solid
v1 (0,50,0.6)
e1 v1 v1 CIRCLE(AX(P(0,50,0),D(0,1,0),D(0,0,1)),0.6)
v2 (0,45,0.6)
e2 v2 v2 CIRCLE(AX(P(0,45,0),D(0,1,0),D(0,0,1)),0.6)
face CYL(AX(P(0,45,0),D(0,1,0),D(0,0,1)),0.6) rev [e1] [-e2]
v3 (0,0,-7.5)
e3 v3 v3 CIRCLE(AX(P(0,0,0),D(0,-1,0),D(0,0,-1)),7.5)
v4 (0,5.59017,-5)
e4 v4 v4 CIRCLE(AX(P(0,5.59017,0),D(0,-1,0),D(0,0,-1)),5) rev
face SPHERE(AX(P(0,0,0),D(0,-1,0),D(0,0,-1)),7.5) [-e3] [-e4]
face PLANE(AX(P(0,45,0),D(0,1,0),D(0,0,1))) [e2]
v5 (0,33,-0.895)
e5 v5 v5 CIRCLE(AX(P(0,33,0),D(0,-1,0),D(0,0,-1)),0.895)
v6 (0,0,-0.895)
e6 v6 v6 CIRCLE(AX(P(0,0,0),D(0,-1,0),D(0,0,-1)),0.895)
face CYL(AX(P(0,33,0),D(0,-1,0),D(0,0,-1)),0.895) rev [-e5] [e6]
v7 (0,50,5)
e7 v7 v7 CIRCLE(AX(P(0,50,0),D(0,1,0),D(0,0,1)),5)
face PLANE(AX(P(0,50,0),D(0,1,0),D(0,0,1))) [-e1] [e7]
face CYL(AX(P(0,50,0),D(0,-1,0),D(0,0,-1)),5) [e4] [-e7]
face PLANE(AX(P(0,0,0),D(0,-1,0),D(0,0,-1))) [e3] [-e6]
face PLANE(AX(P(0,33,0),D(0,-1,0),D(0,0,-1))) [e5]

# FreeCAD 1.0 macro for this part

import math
import FreeCAD as App
import Part
import Sketcher
from FreeCAD import Vector
Q = App.Units.Quantity

doc = App.newDocument("Part")
params = doc.addObject("Spreadsheet::Sheet", "Params")
for row, (alias, value) in enumerate([
    ("sketch1_radius", "7.5 mm"),
    ("revolution_angle", "180 deg"),
    ("sketch2_diameter", "10 mm"),
    ("pad1_length", "50 mm"),
    ("sketch3_diameter", "1.2 mm"),
    ("pocket1_length", "5 mm"),
    ("sketch4_diameter", "1.79 mm"),
    ("pocket2_length", "33 mm"),
], start=1):
    params.set(f"A{row}", alias)
    params.set(f"B{row}", "=" + value)
    params.setAlias(f"B{row}", alias)

body = doc.addObject("PartDesign::Body", "Body")

# Sketch on XZ plane
sketch1 = doc.addObject("Sketcher::SketchObject", "Sketch")
body.addObject(sketch1)
sketch1.AttachmentSupport = (doc.XZ_Plane, [""])
sketch1.MapMode = "FlatFace"
sketch1.addGeometry([
    Part.LineSegment(Vector(8, 0, 0), Vector(-8, 0, 0)),
    Part.ArcOfCircle(Part.Circle(Vector(0, 0, 0), Vector(0, 0, 1), 8), math.radians(0), math.radians(180)),
], False)
sketch1.addConstraint([
    Sketcher.Constraint("Coincident", 0, 1, 1, 1),
    Sketcher.Constraint("Coincident", 1, 2, 0, 2),
    Sketcher.Constraint("Horizontal", 0),
    Sketcher.Constraint("Coincident", 1, 3, -1, 1),
    Sketcher.Constraint("PointOnObject", 0, 1, -1),
    Sketcher.Constraint("Radius", 1, Q("7.5 mm")),
])
sketch1.setExpression("Constraints[5]", "Params.sketch1_radius")
revolution = doc.addObject("PartDesign::Revolution", "Revolution")
body.addObject(revolution)
revolution.Profile = sketch1
revolution.ReferenceAxis = (sketch1, ["H_Axis"])
revolution.setExpression("Angle", "Params.revolution_angle")
revolution.Reversed = True

# Sketch on XZ plane
sketch2 = doc.addObject("Sketcher::SketchObject", "Sketch001")
body.addObject(sketch2)
sketch2.AttachmentSupport = (doc.XZ_Plane, [""])
sketch2.MapMode = "FlatFace"
sketch2.addGeometry(Part.Circle(Vector(0, 0, 0), Vector(0, 0, 1), 5), False)
sketch2.addConstraint([
    Sketcher.Constraint("Coincident", 0, 3, -1, 1),
    Sketcher.Constraint("Diameter", 0, Q("10 mm")),
])
sketch2.setExpression("Constraints[1]", "Params.sketch2_diameter")
pad1 = doc.addObject("PartDesign::Pad", "Pad")
body.addObject(pad1)
pad1.Profile = sketch2
pad1.setExpression("Length", "Params.pad1_length")
pad1.Reversed = True

# Sketch on XZ plane
sketch3 = doc.addObject("Sketcher::SketchObject", "Sketch002")
body.addObject(sketch3)
sketch3.AttachmentSupport = (doc.XZ_Plane, [""])
sketch3.MapMode = "FlatFace"
sketch3.AttachmentOffset = App.Placement(Vector(0, 0, -50), App.Rotation())
sketch3.addGeometry(Part.Circle(Vector(0, 0, 0), Vector(0, 0, 1), 0.6), False)
sketch3.addConstraint([
    Sketcher.Constraint("Coincident", 0, 3, -1, 1),
    Sketcher.Constraint("Diameter", 0, Q("1.2 mm")),
])
sketch3.setExpression("Constraints[1]", "Params.sketch3_diameter")
pocket1 = doc.addObject("PartDesign::Pocket", "Pocket")
body.addObject(pocket1)
pocket1.Profile = sketch3
pocket1.setExpression("Length", "Params.pocket1_length")
pocket1.Reversed = True

# Sketch on XZ plane
sketch4 = doc.addObject("Sketcher::SketchObject", "Sketch003")
body.addObject(sketch4)
sketch4.AttachmentSupport = (doc.XZ_Plane, [""])
sketch4.MapMode = "FlatFace"
sketch4.addGeometry(Part.Circle(Vector(0, 0, 0), Vector(0, 0, 1), 0.9), False)
sketch4.addConstraint([
    Sketcher.Constraint("Coincident", 0, 3, -1, 1),
    Sketcher.Constraint("Diameter", 0, Q("1.79 mm")),
])
sketch4.setExpression("Constraints[1]", "Params.sketch4_diameter")
pocket2 = doc.addObject("PartDesign::Pocket", "Pocket001")
body.addObject(pocket2)
pocket2.Profile = sketch4
pocket2.setExpression("Length", "Params.pocket2_length")

doc.recompute()
